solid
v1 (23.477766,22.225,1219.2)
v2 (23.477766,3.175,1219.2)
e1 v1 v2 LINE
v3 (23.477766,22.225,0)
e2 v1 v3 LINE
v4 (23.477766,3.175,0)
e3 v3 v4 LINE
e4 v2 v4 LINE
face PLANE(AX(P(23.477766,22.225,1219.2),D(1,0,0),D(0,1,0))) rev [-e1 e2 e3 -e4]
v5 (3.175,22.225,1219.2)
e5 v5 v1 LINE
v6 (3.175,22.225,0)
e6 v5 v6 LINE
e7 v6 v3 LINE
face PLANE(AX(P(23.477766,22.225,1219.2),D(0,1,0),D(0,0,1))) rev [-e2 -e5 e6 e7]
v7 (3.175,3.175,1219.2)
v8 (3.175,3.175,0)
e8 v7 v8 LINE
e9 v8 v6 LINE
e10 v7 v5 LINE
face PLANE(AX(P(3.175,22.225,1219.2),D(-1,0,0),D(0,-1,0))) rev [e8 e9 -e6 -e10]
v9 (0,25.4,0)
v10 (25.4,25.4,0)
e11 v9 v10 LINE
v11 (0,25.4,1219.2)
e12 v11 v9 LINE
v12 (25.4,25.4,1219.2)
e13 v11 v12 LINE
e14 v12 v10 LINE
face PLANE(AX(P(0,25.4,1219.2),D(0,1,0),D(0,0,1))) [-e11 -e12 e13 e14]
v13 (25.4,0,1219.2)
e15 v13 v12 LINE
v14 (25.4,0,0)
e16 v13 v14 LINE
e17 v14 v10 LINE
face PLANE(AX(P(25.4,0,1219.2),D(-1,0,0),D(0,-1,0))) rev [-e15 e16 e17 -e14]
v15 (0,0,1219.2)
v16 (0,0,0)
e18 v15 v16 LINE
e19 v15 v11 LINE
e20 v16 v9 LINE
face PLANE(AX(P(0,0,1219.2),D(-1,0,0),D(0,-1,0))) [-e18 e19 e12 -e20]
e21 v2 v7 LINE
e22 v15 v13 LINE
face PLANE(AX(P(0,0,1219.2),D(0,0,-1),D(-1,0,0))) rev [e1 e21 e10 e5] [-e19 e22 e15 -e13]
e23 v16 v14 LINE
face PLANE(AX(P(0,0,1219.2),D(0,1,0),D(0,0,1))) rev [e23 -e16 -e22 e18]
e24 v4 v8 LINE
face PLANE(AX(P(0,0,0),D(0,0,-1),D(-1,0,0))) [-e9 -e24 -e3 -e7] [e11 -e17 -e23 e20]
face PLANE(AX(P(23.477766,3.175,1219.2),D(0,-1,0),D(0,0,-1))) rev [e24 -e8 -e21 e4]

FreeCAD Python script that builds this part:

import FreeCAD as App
import Part
import Sketcher
from FreeCAD import Vector
Q = App.Units.Quantity

doc = App.newDocument("Part")
params = doc.addObject("Spreadsheet::Sheet", "Params")
for row, (alias, value) in enumerate([
    ("sketch1_width", "1 in"),
    ("pad1_length", "48 in"),
    ("sketch2_height", "0.75 in"),
], start=1):
    params.set(f"A{row}", alias)
    params.set(f"B{row}", "=" + value)
    params.setAlias(f"B{row}", alias)

body = doc.addObject("PartDesign::Body", "Body")

# Sketch on XY plane
sketch1 = doc.addObject("Sketcher::SketchObject", "Sketch")
body.addObject(sketch1)
sketch1.AttachmentSupport = (doc.XY_Plane, [""])
sketch1.MapMode = "FlatFace"
sketch1.addGeometry([
    Part.LineSegment(Vector(0, 25, 0), Vector(0, 0, 0)),
    Part.LineSegment(Vector(0, 0, 0), Vector(25, 0, 0)),
    Part.LineSegment(Vector(25, 0, 0), Vector(25, 25, 0)),
    Part.LineSegment(Vector(25, 25, 0), Vector(0, 25, 0)),
], False)
sketch1.addConstraint([
    Sketcher.Constraint("Coincident", 0, 2, 1, 1),
    Sketcher.Constraint("Coincident", 1, 2, 2, 1),
    Sketcher.Constraint("Coincident", 2, 2, 3, 1),
    Sketcher.Constraint("Coincident", 3, 2, 0, 1),
    Sketcher.Constraint("Vertical", 0),
    Sketcher.Constraint("Horizontal", 1),
    Sketcher.Constraint("Vertical", 2),
    Sketcher.Constraint("Horizontal", 3),
    Sketcher.Constraint("Coincident", 0, 2, -1, 1),
    Sketcher.Constraint("Equal", 3, 0),
    Sketcher.Constraint("DistanceX", 1, 1, 1, 2, Q("1 in")),
])
sketch1.setExpression("Constraints[10]", "Params.sketch1_width")
pad1 = doc.addObject("PartDesign::Pad", "Pad")
body.addObject(pad1)
pad1.Profile = sketch1
pad1.setExpression("Length", "Params.pad1_length")

# Sketch on XY plane
sketch2 = doc.addObject("Sketcher::SketchObject", "Sketch001")
body.addObject(sketch2)
sketch2.AttachmentSupport = (doc.XY_Plane, [""])
sketch2.MapMode = "FlatFace"
sketch2.addGeometry([
    Part.LineSegment(Vector(23, 22, 0), Vector(23, 3, 0)),
    Part.LineSegment(Vector(23, 3, 0), Vector(3, 3, 0)),
    Part.LineSegment(Vector(3, 3, 0), Vector(3, 22, 0)),
    Part.LineSegment(Vector(3, 22, 0), Vector(23, 22, 0)),
], False)
sketch2.addConstraint([
    Sketcher.Constraint("Coincident", 0, 2, 1, 1),
    Sketcher.Constraint("Coincident", 1, 2, 2, 1),
    Sketcher.Constraint("Coincident", 2, 2, 3, 1),
    Sketcher.Constraint("Coincident", 3, 2, 0, 1),
    Sketcher.Constraint("Vertical", 0),
    Sketcher.Constraint("Horizontal", 1),
    Sketcher.Constraint("Vertical", 2),
    Sketcher.Constraint("Horizontal", 3),
    Sketcher.Constraint("DistanceY", 0, 2, 0, 1, Q("0.75 in")),
    Sketcher.Constraint("DistanceY", -1, 1, 0, 2, Q("0.125 in")),
    Sketcher.Constraint("DistanceX", -1, 1, 1, 2, Q("0.125 in")),
    Sketcher.Constraint("DistanceX", 1, 2, 1, 1, Q("20.302766 mm")),
])
sketch2.setExpression("Constraints[8]", "Params.sketch2_height")
pocket1 = doc.addObject("PartDesign::Pocket", "Pocket")
body.addObject(pocket1)
pocket1.Profile = sketch2
pocket1.Type = "ThroughAll"
pocket1.Reversed = True

doc.recompute()
